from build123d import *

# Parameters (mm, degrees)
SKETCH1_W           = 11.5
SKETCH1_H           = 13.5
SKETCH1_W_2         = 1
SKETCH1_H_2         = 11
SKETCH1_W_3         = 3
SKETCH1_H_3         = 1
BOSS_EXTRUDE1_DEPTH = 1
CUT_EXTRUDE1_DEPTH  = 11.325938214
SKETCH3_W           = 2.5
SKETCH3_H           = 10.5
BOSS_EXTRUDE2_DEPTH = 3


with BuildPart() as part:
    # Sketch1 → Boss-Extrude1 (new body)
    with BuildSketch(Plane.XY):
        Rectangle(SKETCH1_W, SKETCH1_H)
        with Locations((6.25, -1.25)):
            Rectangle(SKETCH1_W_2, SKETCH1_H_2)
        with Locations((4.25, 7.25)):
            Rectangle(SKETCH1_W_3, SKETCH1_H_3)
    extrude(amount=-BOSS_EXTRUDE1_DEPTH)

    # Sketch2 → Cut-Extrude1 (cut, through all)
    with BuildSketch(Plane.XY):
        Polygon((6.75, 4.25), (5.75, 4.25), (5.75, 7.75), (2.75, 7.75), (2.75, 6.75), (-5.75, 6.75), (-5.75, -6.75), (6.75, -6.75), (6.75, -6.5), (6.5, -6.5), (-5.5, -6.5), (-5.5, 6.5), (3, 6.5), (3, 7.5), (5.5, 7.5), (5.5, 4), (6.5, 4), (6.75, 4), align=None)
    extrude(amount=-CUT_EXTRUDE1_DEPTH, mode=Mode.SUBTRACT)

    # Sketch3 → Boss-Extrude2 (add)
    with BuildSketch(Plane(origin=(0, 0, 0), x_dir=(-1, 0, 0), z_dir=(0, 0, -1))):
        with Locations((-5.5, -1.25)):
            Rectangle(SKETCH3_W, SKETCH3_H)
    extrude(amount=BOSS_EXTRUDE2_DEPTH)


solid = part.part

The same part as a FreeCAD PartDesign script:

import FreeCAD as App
import Part
import Sketcher

V = App.Vector
Q = App.Units.Quantity


def add_polygon(sketch, points):
    """Adds a closed chain of lines whose ends are joined by coincident constraints."""
    first, n = sketch.GeometryCount, len(points)
    for a, b in zip(points, points[1:] + points[:1]):
        sketch.addGeometry(Part.LineSegment(App.Vector(*a, 0), App.Vector(*b, 0)), False)
    for i in range(n):
        sketch.addConstraint(Sketcher.Constraint("Coincident", first + i, 2, first + (i + 1) % n, 1))

doc = App.newDocument("Part")
params = doc.addObject("Spreadsheet::Sheet", "Params")
for row, (alias, value) in enumerate([
    ("sketch1_width", "1 mm"),
    ("sketch1_width2", "3 mm"),
    ("sketch1_height", "11 mm"),
    ("sketch1_width3", "12.5 mm"),
    ("sketch1_height2", "13.5 mm"),
    ("pad1_length", "1 mm"),
    ("sketch2_width", "1 mm"),
    ("sketch2_width2", "3 mm"),
    ("sketch2_height", "13 mm"),
    ("sketch2_width3", "8.5 mm"),
    ("sketch2_width4", "2.5 mm"),
    ("sketch3_width", "2.5 mm"),
    ("sketch3_height", "10.5 mm"),
    ("pad2_length", "3 mm"),
], start=1):
    params.set(f"A{row}", alias)
    params.set(f"B{row}", "=" + value)
    params.setAlias(f"B{row}", alias)

body = doc.addObject("PartDesign::Body", "Body")

# Sketch on XY plane
sketch1 = doc.addObject("Sketcher::SketchObject", "Sketch")
body.addObject(sketch1)
sketch1.AttachmentSupport = (doc.XY_Plane, [""])
sketch1.MapMode = "FlatFace"
add_polygon(sketch1, [(-5.8, 6.8), (-5.8, -6.8), (6.8, -6.8), (6.8, 4.2), (5.8, 4.2), (5.8, 7.8), (2.8, 7.8), (2.8, 6.8)])  # lines 0-7
sketch1.addConstraint(Sketcher.Constraint("Vertical", 0))
sketch1.addConstraint(Sketcher.Constraint("Horizontal", 1))
sketch1.addConstraint(Sketcher.Constraint("Vertical", 2))
sketch1.addConstraint(Sketcher.Constraint("Horizontal", 3))
sketch1.addConstraint(Sketcher.Constraint("Vertical", 4))
sketch1.addConstraint(Sketcher.Constraint("Horizontal", 5))
sketch1.addConstraint(Sketcher.Constraint("Vertical", 6))
sketch1.addConstraint(Sketcher.Constraint("Horizontal", 7))
sketch1.addConstraint(Sketcher.Constraint("Equal", 3, 6))
sketch1.addConstraint(Sketcher.Constraint("DistanceX", 3, 2, 3, 1, Q("1 mm")))
sketch1.addConstraint(Sketcher.Constraint("DistanceX", 5, 2, 5, 1, Q("3 mm")))
sketch1.addConstraint(Sketcher.Constraint("DistanceY", 2, 1, 2, 2, Q("11 mm")))
sketch1.addConstraint(Sketcher.Constraint("DistanceX", 1, 1, 1, 2, Q("12.5 mm")))
sketch1.addConstraint(Sketcher.Constraint("DistanceY", 0, 2, 0, 1, Q("13.5 mm")))
sketch1.addConstraint(Sketcher.Constraint("DistanceX", 0, 2, -1, 1, Q("5.75 mm")))
sketch1.addConstraint(Sketcher.Constraint("DistanceY", 0, 2, -1, 1, Q("6.75 mm")))
sketch1.setExpression("Constraints[17]", "Params.sketch1_width")
sketch1.setExpression("Constraints[18]", "Params.sketch1_width2")
sketch1.setExpression("Constraints[19]", "Params.sketch1_height")
sketch1.setExpression("Constraints[20]", "Params.sketch1_width3")
sketch1.setExpression("Constraints[21]", "Params.sketch1_height2")
pad1 = doc.addObject("PartDesign::Pad", "Pad")
body.addObject(pad1)
pad1.Profile = sketch1
pad1.setExpression("Length", "Params.pad1_length")
pad1.Reversed = True

# Sketch on XY plane
sketch2 = doc.addObject("Sketcher::SketchObject", "Sketch001")
body.addObject(sketch2)
sketch2.AttachmentSupport = (doc.XY_Plane, [""])
sketch2.MapMode = "FlatFace"
add_polygon(sketch2, [(6.75, 4.25), (5.75, 4.25), (5.75, 7.75), (2.75, 7.75), (2.75, 6.75), (-5.75, 6.75), (-5.75, -6.75), (6.75, -6.75), (6.75, -6.5), (-5.5, -6.5), (-5.5, 6.5), (3, 6.5), (3, 7.5), (5.5, 7.5), (5.5, 4), (6.75, 4)])  # lines 0-15
sketch2.addConstraint(Sketcher.Constraint("Horizontal", 0))
sketch2.addConstraint(Sketcher.Constraint("Vertical", 1))
sketch2.addConstraint(Sketcher.Constraint("Horizontal", 2))
sketch2.addConstraint(Sketcher.Constraint("Vertical", 3))
sketch2.addConstraint(Sketcher.Constraint("Horizontal", 4))
sketch2.addConstraint(Sketcher.Constraint("Vertical", 5))
sketch2.addConstraint(Sketcher.Constraint("Horizontal", 6))
sketch2.addConstraint(Sketcher.Constraint("Vertical", 7))
sketch2.addConstraint(Sketcher.Constraint("Horizontal", 8))
sketch2.addConstraint(Sketcher.Constraint("Vertical", 9))
sketch2.addConstraint(Sketcher.Constraint("Horizontal", 10))
sketch2.addConstraint(Sketcher.Constraint("Vertical", 11))
sketch2.addConstraint(Sketcher.Constraint("Horizontal", 12))
sketch2.addConstraint(Sketcher.Constraint("Vertical", 13))
sketch2.addConstraint(Sketcher.Constraint("Horizontal", 14))
sketch2.addConstraint(Sketcher.Constraint("Vertical", 15))
sketch2.addConstraint(Sketcher.Constraint("Vertical", 7, 2, 14, 2))
sketch2.addConstraint(Sketcher.Constraint("Equal", 4, 10))
sketch2.addConstraint(Sketcher.Constraint("Equal", 0, 3))
sketch2.addConstraint(Sketcher.Constraint("Equal", 3, 11))
sketch2.addConstraint(Sketcher.Constraint("Equal", 1, 13))
sketch2.addConstraint(Sketcher.Constraint("Equal", 7, 15))
sketch2.addConstraint(Sketcher.Constraint("DistanceX", 0, 2, 0, 1, Q("1 mm")))
sketch2.addConstraint(Sketcher.Constraint("DistanceX", 2, 2, 2, 1, Q("3 mm")))
sketch2.addConstraint(Sketcher.Constraint("DistanceY", 9, 1, 9, 2, Q("13 mm")))
sketch2.addConstraint(Sketcher.Constraint("DistanceX", 4, 2, 4, 1, Q("8.5 mm")))
sketch2.addConstraint(Sketcher.Constraint("DistanceX", 12, 1, 12, 2, Q("2.5 mm")))
sketch2.addConstraint(Sketcher.Constraint("DistanceY", 1, 1, 1, 2, Q("3.5 mm")))
sketch2.addConstraint(Sketcher.Constraint("DistanceY", 5, 2, 5, 1, Q("13.5 mm")))
sketch2.addConstraint(Sketcher.Constraint("DistanceX", -1, 1, 10, 2, Q("3 mm")))
sketch2.addConstraint(Sketcher.Constraint("DistanceY", -1, 1, 13, 2, Q("4 mm")))
sketch2.addConstraint(Sketcher.Constraint("DistanceX", 8, 2, 8, 1, Q("12.25 mm")))
sketch2.setExpression("Constraints[38]", "Params.sketch2_width")
sketch2.setExpression("Constraints[39]", "Params.sketch2_width2")
sketch2.setExpression("Constraints[40]", "Params.sketch2_height")
sketch2.setExpression("Constraints[41]", "Params.sketch2_width3")
sketch2.setExpression("Constraints[42]", "Params.sketch2_width4")
pocket1 = doc.addObject("PartDesign::Pocket", "Pocket")
body.addObject(pocket1)
pocket1.Profile = sketch2
pocket1.Type = "ThroughAll"

# Sketch on XY plane
sketch3 = doc.addObject("Sketcher::SketchObject", "Sketch002")
body.addObject(sketch3)
sketch3.AttachmentSupport = (doc.XY_Plane, [""])
sketch3.MapMode = "FlatFace"
add_polygon(sketch3, [(6.8, 4), (6.8, -6.5), (4.2, -6.5), (4.2, 4)])  # lines 0-3
sketch3.addConstraint(Sketcher.Constraint("Vertical", 0))
sketch3.addConstraint(Sketcher.Constraint("Horizontal", 1))
sketch3.addConstraint(Sketcher.Constraint("Vertical", 2))
sketch3.addConstraint(Sketcher.Constraint("Horizontal", 3))
sketch3.addConstraint(Sketcher.Constraint("DistanceX", 1, 2, 1, 1, Q("2.5 mm")))
sketch3.addConstraint(Sketcher.Constraint("DistanceY", 0, 2, 0, 1, Q("10.5 mm")))
sketch3.addConstraint(Sketcher.Constraint("DistanceY", -1, 1, 2, 2, Q("4 mm")))
sketch3.addConstraint(Sketcher.Constraint("DistanceX", -1, 1, 0, 2, Q("6.75 mm")))
sketch3.setExpression("Constraints[8]", "Params.sketch3_width")
sketch3.setExpression("Constraints[9]", "Params.sketch3_height")
pad2 = doc.addObject("PartDesign::Pad", "Pad001")
body.addObject(pad2)
pad2.Profile = sketch3
pad2.setExpression("Length", "Params.pad2_length")
pad2.Reversed = True

doc.recompute()
